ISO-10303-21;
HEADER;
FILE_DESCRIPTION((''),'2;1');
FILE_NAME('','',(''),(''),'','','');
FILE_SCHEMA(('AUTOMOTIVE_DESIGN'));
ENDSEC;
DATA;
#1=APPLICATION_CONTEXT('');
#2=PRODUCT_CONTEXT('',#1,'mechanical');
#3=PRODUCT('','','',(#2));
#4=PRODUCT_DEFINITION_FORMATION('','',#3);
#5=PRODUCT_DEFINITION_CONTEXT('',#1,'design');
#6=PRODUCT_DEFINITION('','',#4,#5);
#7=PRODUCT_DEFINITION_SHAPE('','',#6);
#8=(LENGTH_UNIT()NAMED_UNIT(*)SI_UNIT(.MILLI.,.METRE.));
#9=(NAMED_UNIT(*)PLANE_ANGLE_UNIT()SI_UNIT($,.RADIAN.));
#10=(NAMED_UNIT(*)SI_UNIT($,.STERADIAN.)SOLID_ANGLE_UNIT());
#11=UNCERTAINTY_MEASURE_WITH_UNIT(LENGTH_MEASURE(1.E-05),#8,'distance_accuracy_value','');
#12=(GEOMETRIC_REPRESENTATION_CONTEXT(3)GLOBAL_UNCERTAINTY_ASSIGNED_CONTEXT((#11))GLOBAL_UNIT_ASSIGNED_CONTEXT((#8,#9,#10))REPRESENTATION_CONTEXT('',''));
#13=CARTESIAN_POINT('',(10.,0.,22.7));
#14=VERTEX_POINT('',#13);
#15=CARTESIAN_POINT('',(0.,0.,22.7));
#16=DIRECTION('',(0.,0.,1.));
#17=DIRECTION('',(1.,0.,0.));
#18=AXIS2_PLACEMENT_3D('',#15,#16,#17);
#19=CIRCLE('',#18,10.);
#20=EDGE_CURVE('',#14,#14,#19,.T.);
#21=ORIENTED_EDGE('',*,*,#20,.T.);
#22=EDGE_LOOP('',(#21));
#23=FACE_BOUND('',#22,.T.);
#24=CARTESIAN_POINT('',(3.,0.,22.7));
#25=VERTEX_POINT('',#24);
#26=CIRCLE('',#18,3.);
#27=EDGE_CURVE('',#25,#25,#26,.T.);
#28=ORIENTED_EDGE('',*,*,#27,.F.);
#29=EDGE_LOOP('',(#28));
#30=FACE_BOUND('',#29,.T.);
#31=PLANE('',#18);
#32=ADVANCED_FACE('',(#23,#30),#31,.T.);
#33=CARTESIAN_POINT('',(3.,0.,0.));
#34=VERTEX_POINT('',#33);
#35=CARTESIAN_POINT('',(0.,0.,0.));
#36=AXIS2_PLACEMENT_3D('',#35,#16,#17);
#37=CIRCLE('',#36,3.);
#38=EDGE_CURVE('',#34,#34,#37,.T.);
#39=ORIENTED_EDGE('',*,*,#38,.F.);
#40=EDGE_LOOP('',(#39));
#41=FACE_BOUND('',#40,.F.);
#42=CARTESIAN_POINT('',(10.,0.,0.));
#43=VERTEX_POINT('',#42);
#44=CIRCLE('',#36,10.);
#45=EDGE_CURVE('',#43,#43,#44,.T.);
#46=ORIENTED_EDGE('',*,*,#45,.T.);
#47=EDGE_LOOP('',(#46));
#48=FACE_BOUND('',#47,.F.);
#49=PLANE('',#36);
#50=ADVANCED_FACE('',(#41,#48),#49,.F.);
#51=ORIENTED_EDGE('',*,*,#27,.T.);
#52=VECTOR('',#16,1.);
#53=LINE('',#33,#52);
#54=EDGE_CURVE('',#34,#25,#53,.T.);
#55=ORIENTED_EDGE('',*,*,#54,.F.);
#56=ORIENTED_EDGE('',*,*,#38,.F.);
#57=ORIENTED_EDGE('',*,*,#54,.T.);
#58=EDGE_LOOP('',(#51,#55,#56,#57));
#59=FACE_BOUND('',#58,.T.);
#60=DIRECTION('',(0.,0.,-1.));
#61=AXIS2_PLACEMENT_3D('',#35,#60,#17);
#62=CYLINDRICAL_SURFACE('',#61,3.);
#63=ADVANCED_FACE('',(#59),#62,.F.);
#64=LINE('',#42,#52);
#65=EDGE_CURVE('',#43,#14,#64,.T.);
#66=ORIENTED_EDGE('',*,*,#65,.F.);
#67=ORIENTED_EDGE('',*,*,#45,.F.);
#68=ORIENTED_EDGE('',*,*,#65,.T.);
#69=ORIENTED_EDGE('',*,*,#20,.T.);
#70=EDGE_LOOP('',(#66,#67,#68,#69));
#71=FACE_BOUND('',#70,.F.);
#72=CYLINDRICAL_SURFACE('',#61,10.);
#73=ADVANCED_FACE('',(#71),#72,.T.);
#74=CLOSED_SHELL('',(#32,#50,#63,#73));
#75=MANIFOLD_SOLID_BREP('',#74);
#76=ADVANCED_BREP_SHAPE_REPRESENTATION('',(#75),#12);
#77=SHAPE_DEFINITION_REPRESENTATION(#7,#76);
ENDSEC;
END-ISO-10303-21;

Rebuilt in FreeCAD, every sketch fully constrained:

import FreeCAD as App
import Part
import Sketcher
from FreeCAD import Vector

doc = App.newDocument("Part")
body = doc.addObject("PartDesign::Body", "Body")

# Sketch on XY plane
sketch1 = body.newObject("Sketcher::SketchObject", "Sketch")
sketch1.AttachmentSupport = (doc.getObject("XY_Plane"), [""])
sketch1.MapMode = "FlatFace"
sketch1.addGeometry([
    Part.Circle(Vector(0, 0, 0), Vector(0, 0, 1), 10),
    Part.Circle(Vector(0, 0, 0), Vector(0, 0, 1), 3),
], False)
sketch1.addConstraint([
    Sketcher.Constraint("Coincident", 0, 3, -1, 1),
    Sketcher.Constraint("Coincident", 1, 3, -1, 1),
    Sketcher.Constraint("Diameter", 0, 20.0),
    Sketcher.Constraint("Diameter", 1, 6.0),
])
pad1 = body.newObject("PartDesign::Pad", "Pad")
pad1.Profile = sketch1
pad1.Length = 22.7

doc.recompute()
